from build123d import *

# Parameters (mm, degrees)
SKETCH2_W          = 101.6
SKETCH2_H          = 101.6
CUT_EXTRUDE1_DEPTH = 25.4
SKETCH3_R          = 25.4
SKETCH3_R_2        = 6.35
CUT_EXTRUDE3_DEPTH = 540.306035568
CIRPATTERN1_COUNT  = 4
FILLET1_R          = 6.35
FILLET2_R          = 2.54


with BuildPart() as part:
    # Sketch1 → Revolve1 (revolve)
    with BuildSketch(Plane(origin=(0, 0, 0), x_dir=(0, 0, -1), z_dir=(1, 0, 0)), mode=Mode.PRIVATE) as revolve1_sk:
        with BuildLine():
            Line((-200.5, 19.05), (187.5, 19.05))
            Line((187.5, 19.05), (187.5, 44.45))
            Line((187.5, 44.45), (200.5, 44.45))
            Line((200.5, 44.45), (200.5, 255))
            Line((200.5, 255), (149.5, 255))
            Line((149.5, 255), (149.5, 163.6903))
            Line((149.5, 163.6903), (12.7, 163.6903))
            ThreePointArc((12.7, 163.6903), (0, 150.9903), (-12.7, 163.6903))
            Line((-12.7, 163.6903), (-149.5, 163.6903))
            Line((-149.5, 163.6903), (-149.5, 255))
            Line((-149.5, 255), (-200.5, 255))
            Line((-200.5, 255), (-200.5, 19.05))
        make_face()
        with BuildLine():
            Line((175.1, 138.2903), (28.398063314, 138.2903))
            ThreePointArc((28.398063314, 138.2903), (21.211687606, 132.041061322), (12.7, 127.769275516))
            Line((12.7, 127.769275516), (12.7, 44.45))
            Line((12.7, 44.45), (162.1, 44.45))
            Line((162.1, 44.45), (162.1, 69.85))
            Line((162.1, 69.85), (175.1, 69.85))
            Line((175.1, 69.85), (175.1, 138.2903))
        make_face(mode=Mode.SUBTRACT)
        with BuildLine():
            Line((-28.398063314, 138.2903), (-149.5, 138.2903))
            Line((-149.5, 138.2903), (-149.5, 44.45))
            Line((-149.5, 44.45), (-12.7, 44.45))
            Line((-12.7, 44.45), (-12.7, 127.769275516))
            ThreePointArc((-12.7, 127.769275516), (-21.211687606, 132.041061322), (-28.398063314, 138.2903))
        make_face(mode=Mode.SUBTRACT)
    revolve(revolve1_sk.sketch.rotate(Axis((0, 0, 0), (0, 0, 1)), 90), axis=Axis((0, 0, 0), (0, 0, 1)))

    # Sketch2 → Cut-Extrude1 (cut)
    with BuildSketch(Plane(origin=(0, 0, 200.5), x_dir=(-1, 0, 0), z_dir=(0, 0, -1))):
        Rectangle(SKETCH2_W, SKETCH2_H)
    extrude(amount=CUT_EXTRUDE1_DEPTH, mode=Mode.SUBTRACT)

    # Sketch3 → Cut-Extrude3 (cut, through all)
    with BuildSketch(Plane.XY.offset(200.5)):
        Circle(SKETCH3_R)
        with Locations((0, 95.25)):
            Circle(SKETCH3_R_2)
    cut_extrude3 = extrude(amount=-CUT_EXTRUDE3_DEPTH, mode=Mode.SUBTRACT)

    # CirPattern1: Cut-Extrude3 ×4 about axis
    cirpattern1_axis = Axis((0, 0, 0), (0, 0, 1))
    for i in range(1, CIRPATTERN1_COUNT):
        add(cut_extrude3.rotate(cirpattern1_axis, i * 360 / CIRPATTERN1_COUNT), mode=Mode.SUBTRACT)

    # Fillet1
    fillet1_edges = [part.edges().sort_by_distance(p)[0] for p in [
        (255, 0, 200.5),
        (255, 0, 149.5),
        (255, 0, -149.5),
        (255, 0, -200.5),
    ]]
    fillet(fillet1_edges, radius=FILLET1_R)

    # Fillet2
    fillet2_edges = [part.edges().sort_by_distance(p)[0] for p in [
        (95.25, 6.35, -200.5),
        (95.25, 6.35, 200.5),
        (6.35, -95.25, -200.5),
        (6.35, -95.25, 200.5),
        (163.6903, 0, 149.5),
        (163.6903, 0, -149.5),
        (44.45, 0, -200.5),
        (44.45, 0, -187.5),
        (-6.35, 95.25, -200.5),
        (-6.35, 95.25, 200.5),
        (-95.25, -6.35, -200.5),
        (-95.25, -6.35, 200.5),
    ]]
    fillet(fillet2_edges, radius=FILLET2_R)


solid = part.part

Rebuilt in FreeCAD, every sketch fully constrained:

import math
import FreeCAD as App
import Part
import Sketcher
Q = App.Units.Quantity


def edges_at(feature, points):
    """Names of the edges that pass closest to the given points."""
    edges = feature.Shape.Edges
    near = lambda p: min(range(len(edges)), key=lambda i: edges[i].distToShape(Part.Vertex(*p))[0])
    return sorted({f"Edge{near(p) + 1}" for p in points})


def add_polygon(sketch, points):
    """Adds a closed chain of lines whose ends are joined by coincident constraints."""
    first, n = sketch.GeometryCount, len(points)
    for a, b in zip(points, points[1:] + points[:1]):
        sketch.addGeometry(Part.LineSegment(App.Vector(*a, 0), App.Vector(*b, 0)), False)
    for i in range(n):
        sketch.addConstraint(Sketcher.Constraint("Coincident", first + i, 2, first + (i + 1) % n, 1))

doc = App.newDocument("Part")
params = doc.addObject("Spreadsheet::Sheet", "Params")
for row, (alias, value) in enumerate([
    ("sketch1_radius", "0.5 in"),
    ("sketch1_radius2", "1.5 in"),
    ("sketch1_width", "1 in"),
    ("revolution_angle", "360 deg"),
    ("sketch2_width", "4 in"),
    ("pocket1_length", "1 in"),
    ("sketch3_diameter", "2 in"),
    ("sketch3_diameter2", "0.5 in"),
    ("fillet_radius", "0.25 in"),
    ("fillet2_radius", "0.1 in"),
], start=1):
    params.set(f"A{row}", alias)
    params.set(f"B{row}", "=" + value)
    params.setAlias(f"B{row}", alias)

body = doc.addObject("PartDesign::Body", "Body")

# Sketch on YZ plane
sketch1 = body.newObject("Sketcher::SketchObject", "Sketch")
sketch1.AttachmentSupport = (doc.getObject("YZ_Plane"), [""])
sketch1.MapMode = "FlatFace"
sketch1.addGeometry([
    Part.LineSegment(App.Vector(19.05, 200.5, 0), App.Vector(19.05, -187.5, 0)),  # 0
    Part.LineSegment(App.Vector(19.05, -187.5, 0), App.Vector(44.45, -187.5, 0)),  # 1
    Part.LineSegment(App.Vector(44.45, -187.5, 0), App.Vector(44.45, -200.5, 0)),  # 2
    Part.LineSegment(App.Vector(44.45, -200.5, 0), App.Vector(255, -200.5, 0)),  # 3
    Part.LineSegment(App.Vector(255, -200.5, 0), App.Vector(255, -149.5, 0)),  # 4
    Part.LineSegment(App.Vector(255, -149.5, 0), App.Vector(163.6903, -149.5, 0)),  # 5
    Part.LineSegment(App.Vector(163.6903, -149.5, 0), App.Vector(163.6903, -12.7, 0)),  # 6
    Part.ArcOfCircle(Part.Circle(App.Vector(163.6903, 0, 0), App.Vector(0, 0, 1), 12.7), math.radians(90), math.radians(270)),  # 7
    Part.LineSegment(App.Vector(163.6903, 12.7, 0), App.Vector(163.6903, 149.5, 0)),  # 8
    Part.LineSegment(App.Vector(163.6903, 149.5, 0), App.Vector(255, 149.5, 0)),  # 9
    Part.LineSegment(App.Vector(255, 149.5, 0), App.Vector(255, 200.5, 0)),  # 10
    Part.LineSegment(App.Vector(255, 200.5, 0), App.Vector(19.05, 200.5, 0)),  # 11
    Part.LineSegment(App.Vector(138.2903, 149.5, 0), App.Vector(138.2903, 28.398063, 0)),  # 12
    Part.ArcOfCircle(Part.Circle(App.Vector(163.6903, 0, 0), App.Vector(0, 0, 1), 38.1), math.radians(131.810315), math.radians(160.528779)),  # 13
    Part.LineSegment(App.Vector(127.769276, 12.7, 0), App.Vector(44.45, 12.7, 0)),  # 14
    Part.LineSegment(App.Vector(44.45, 12.7, 0), App.Vector(44.45, 149.5, 0)),  # 15
    Part.LineSegment(App.Vector(44.45, 149.5, 0), App.Vector(138.2903, 149.5, 0)),  # 16
    Part.LineSegment(App.Vector(138.2903, -28.398063, 0), App.Vector(138.2903, -175.1, 0)),  # 17
    Part.LineSegment(App.Vector(138.2903, -175.1, 0), App.Vector(69.85, -175.1, 0)),  # 18
    Part.LineSegment(App.Vector(69.85, -175.1, 0), App.Vector(69.85, -162.1, 0)),  # 19
    Part.LineSegment(App.Vector(69.85, -162.1, 0), App.Vector(44.45, -162.1, 0)),  # 20
    Part.LineSegment(App.Vector(44.45, -162.1, 0), App.Vector(44.45, -12.7, 0)),  # 21
    Part.LineSegment(App.Vector(44.45, -12.7, 0), App.Vector(127.769276, -12.7, 0)),  # 22
    Part.ArcOfCircle(Part.Circle(App.Vector(163.6903, 0, 0), App.Vector(0, 0, 1), 38.1), math.radians(-160.528779), math.radians(-131.810315)),  # 23
], False)
sketch1.addConstraint([
    Sketcher.Constraint("Coincident", 0, 2, 1, 1),
    Sketcher.Constraint("Coincident", 1, 2, 2, 1),
    Sketcher.Constraint("Coincident", 2, 2, 3, 1),
    Sketcher.Constraint("Coincident", 3, 2, 4, 1),
    Sketcher.Constraint("Coincident", 4, 2, 5, 1),
    Sketcher.Constraint("Coincident", 5, 2, 6, 1),
    Sketcher.Constraint("Coincident", 6, 2, 7, 2),
    Sketcher.Constraint("Coincident", 7, 1, 8, 1),
    Sketcher.Constraint("Coincident", 8, 2, 9, 1),
    Sketcher.Constraint("Coincident", 9, 2, 10, 1),
    Sketcher.Constraint("Coincident", 10, 2, 11, 1),
    Sketcher.Constraint("Coincident", 11, 2, 0, 1),
    Sketcher.Constraint("Coincident", 12, 2, 13, 1),
    Sketcher.Constraint("Coincident", 13, 2, 14, 1),
    Sketcher.Constraint("Coincident", 14, 2, 15, 1),
    Sketcher.Constraint("Coincident", 15, 2, 16, 1),
    Sketcher.Constraint("Coincident", 16, 2, 12, 1),
    Sketcher.Constraint("Coincident", 17, 2, 18, 1),
    Sketcher.Constraint("Coincident", 18, 2, 19, 1),
    Sketcher.Constraint("Coincident", 19, 2, 20, 1),
    Sketcher.Constraint("Coincident", 20, 2, 21, 1),
    Sketcher.Constraint("Coincident", 21, 2, 22, 1),
    Sketcher.Constraint("Coincident", 22, 2, 23, 1),
    Sketcher.Constraint("Coincident", 23, 2, 17, 1),
    Sketcher.Constraint("Vertical", 0),
    Sketcher.Constraint("Horizontal", 1),
    Sketcher.Constraint("Vertical", 2),
    Sketcher.Constraint("Horizontal", 3),
    Sketcher.Constraint("Vertical", 4),
    Sketcher.Constraint("Horizontal", 5),
    Sketcher.Constraint("Vertical", 6),
    Sketcher.Constraint("Vertical", 8),
    Sketcher.Constraint("Horizontal", 9),
    Sketcher.Constraint("Vertical", 10),
    Sketcher.Constraint("Horizontal", 11),
    Sketcher.Constraint("Vertical", 12),
    Sketcher.Constraint("Horizontal", 14),
    Sketcher.Constraint("Vertical", 15),
    Sketcher.Constraint("Horizontal", 16),
    Sketcher.Constraint("Vertical", 17),
    Sketcher.Constraint("Horizontal", 18),
    Sketcher.Constraint("Vertical", 19),
    Sketcher.Constraint("Horizontal", 20),
    Sketcher.Constraint("Vertical", 21),
    Sketcher.Constraint("Horizontal", 22),
    Sketcher.Constraint("Coincident", 13, 3, 7, 3),
    Sketcher.Constraint("Coincident", 23, 3, 7, 3),
    Sketcher.Constraint("Equal", 13, 23),
    Sketcher.Constraint("Symmetric", 6, 2, 7, 1, -1),
    Sketcher.Constraint("Symmetric", 4, 2, 9, 2, -1),
    Sketcher.Constraint("Symmetric", 14, 2, 21, 2, -1),
    Sketcher.Constraint("Horizontal", 7, 1, 13, 2),
    Sketcher.Constraint("Horizontal", 9, 2, 15, 2),
    Sketcher.Constraint("Vertical", 23, 3, 5, 2),
    Sketcher.Constraint("Vertical", 2, 2, 14, 2),
    Sketcher.Constraint("Vertical", 16, 2, 17, 2),
    Sketcher.Constraint("Equal", 1, 20),
    Sketcher.Constraint("Equal", 4, 10),
    Sketcher.Constraint("Equal", 2, 19),
    Sketcher.Constraint("Radius", 7, Q("0.5 in")),
    Sketcher.Constraint("Radius", 13, Q("1.5 in")),
    Sketcher.Constraint("DistanceX", 1, 1, 1, 2, Q("1 in")),
    Sketcher.Constraint("DistanceX", 12, 2, 7, 1, Q("1 in")),
    Sketcher.Constraint("DistanceY", 2, 2, 17, 2, Q("1 in")),
    Sketcher.Constraint("DistanceX", -1, 1, 0, 2, Q("0.75 in")),
    Sketcher.Constraint("DistanceX", 16, 1, 16, 2, Q("3.6945 in")),
    Sketcher.Constraint("DistanceX", 3, 1, 3, 2, Q("210.55 mm")),
    Sketcher.Constraint("DistanceY", 0, 2, 0, 1, Q("388 mm")),
    Sketcher.Constraint("DistanceY", 2, 2, 2, 1, Q("13 mm")),
    Sketcher.Constraint("DistanceY", 4, 1, 4, 2, Q("51 mm")),
])
sketch1.setExpression("Constraints[59]", "Params.sketch1_radius")
sketch1.setExpression("Constraints[60]", "Params.sketch1_radius2")
sketch1.setExpression("Constraints[61]", "Params.sketch1_width")
revolution = body.newObject("PartDesign::Revolution", "Revolution")
revolution.Profile = sketch1
revolution.ReferenceAxis = (sketch1, ["V_Axis"])
revolution.setExpression("Angle", "Params.revolution_angle")

# Sketch on XY plane
sketch2 = body.newObject("Sketcher::SketchObject", "Sketch001")
sketch2.AttachmentSupport = (doc.getObject("XY_Plane"), [""])
sketch2.MapMode = "FlatFace"
sketch2.AttachmentOffset = App.Placement(App.Vector(0, 0, 200.5), App.Rotation())
add_polygon(sketch2, [(50.8, 50.8), (50.8, -50.8), (-50.8, -50.8), (-50.8, 50.8)])  # lines 0-3
sketch2.addConstraint([
    Sketcher.Constraint("Vertical", 0),
    Sketcher.Constraint("Horizontal", 1),
    Sketcher.Constraint("Vertical", 2),
    Sketcher.Constraint("Horizontal", 3),
    Sketcher.Constraint("Symmetric", 0, 2, 2, 2, -1, 1),
    Sketcher.Constraint("Equal", 3, 0),
    Sketcher.Constraint("DistanceX", 1, 2, 1, 1, Q("4 in")),
])
sketch2.setExpression("Constraints[10]", "Params.sketch2_width")
pocket1 = body.newObject("PartDesign::Pocket", "Pocket")
pocket1.Profile = sketch2
pocket1.setExpression("Length", "Params.pocket1_length")

# Sketch on XY plane
sketch3 = body.newObject("Sketcher::SketchObject", "Sketch002")
sketch3.AttachmentSupport = (doc.getObject("XY_Plane"), [""])
sketch3.MapMode = "FlatFace"
sketch3.AttachmentOffset = App.Placement(App.Vector(0, 0, 200.5), App.Rotation())
sketch3.addGeometry([
    Part.Circle(App.Vector(0, 0, 0), App.Vector(0, 0, 1), 25.4),
    Part.Circle(App.Vector(0, 95.25, 0), App.Vector(0, 0, 1), 6.35),
], False)
sketch3.addConstraint([
    Sketcher.Constraint("Coincident", 0, 3, -1, 1),
    Sketcher.Constraint("PointOnObject", 1, 3, -2),
    Sketcher.Constraint("Diameter", 0, Q("2 in")),
    Sketcher.Constraint("Diameter", 1, Q("0.5 in")),
    Sketcher.Constraint("DistanceY", -1, 1, 1, 3, Q("3.75 in")),
])
sketch3.setExpression("Constraints[2]", "Params.sketch3_diameter")
sketch3.setExpression("Constraints[3]", "Params.sketch3_diameter2")
pocket2 = body.newObject("PartDesign::Pocket", "Pocket001")
pocket2.Profile = sketch3
pocket2.Type = "ThroughAll"
doc.recompute()

polarpattern = body.newObject("PartDesign::PolarPattern", "PolarPattern")
polarpattern.Originals = [pocket2]
polarpattern.Axis = (doc.getObject("Z_Axis"), [""])
polarpattern.Angle = 360
polarpattern.Occurrences = 4
body.Tip = polarpattern
doc.recompute()

fillet = body.newObject("PartDesign::Fillet", "Fillet")
fillet.Base = (polarpattern, edges_at(polarpattern, [
    (255, 0, 200.5),
    (255, 0, 149.5),
    (255, 0, -149.5),
    (255, 0, -200.5),
]))
fillet.setExpression("Radius", "Params.fillet_radius")
doc.recompute()

fillet2 = body.newObject("PartDesign::Fillet", "Fillet001")
fillet2.Base = (fillet, edges_at(fillet, [
    (95.25, 6.35, -200.5),
    (95.25, 6.35, 200.5),
    (6.35, -95.25, -200.5),
    (6.35, -95.25, 200.5),
    (163.69, 0, 149.5),
    (163.69, 0, -149.5),
    (44.45, 0, -200.5),
    (44.45, 0, -187.5),
    (-6.35, 95.25, -200.5),
    (-6.35, 95.25, 200.5),
    (-95.25, -6.35, -200.5),
    (-95.25, -6.35, 200.5),
]))
fillet2.setExpression("Radius", "Params.fillet2_radius")

doc.recompute()
